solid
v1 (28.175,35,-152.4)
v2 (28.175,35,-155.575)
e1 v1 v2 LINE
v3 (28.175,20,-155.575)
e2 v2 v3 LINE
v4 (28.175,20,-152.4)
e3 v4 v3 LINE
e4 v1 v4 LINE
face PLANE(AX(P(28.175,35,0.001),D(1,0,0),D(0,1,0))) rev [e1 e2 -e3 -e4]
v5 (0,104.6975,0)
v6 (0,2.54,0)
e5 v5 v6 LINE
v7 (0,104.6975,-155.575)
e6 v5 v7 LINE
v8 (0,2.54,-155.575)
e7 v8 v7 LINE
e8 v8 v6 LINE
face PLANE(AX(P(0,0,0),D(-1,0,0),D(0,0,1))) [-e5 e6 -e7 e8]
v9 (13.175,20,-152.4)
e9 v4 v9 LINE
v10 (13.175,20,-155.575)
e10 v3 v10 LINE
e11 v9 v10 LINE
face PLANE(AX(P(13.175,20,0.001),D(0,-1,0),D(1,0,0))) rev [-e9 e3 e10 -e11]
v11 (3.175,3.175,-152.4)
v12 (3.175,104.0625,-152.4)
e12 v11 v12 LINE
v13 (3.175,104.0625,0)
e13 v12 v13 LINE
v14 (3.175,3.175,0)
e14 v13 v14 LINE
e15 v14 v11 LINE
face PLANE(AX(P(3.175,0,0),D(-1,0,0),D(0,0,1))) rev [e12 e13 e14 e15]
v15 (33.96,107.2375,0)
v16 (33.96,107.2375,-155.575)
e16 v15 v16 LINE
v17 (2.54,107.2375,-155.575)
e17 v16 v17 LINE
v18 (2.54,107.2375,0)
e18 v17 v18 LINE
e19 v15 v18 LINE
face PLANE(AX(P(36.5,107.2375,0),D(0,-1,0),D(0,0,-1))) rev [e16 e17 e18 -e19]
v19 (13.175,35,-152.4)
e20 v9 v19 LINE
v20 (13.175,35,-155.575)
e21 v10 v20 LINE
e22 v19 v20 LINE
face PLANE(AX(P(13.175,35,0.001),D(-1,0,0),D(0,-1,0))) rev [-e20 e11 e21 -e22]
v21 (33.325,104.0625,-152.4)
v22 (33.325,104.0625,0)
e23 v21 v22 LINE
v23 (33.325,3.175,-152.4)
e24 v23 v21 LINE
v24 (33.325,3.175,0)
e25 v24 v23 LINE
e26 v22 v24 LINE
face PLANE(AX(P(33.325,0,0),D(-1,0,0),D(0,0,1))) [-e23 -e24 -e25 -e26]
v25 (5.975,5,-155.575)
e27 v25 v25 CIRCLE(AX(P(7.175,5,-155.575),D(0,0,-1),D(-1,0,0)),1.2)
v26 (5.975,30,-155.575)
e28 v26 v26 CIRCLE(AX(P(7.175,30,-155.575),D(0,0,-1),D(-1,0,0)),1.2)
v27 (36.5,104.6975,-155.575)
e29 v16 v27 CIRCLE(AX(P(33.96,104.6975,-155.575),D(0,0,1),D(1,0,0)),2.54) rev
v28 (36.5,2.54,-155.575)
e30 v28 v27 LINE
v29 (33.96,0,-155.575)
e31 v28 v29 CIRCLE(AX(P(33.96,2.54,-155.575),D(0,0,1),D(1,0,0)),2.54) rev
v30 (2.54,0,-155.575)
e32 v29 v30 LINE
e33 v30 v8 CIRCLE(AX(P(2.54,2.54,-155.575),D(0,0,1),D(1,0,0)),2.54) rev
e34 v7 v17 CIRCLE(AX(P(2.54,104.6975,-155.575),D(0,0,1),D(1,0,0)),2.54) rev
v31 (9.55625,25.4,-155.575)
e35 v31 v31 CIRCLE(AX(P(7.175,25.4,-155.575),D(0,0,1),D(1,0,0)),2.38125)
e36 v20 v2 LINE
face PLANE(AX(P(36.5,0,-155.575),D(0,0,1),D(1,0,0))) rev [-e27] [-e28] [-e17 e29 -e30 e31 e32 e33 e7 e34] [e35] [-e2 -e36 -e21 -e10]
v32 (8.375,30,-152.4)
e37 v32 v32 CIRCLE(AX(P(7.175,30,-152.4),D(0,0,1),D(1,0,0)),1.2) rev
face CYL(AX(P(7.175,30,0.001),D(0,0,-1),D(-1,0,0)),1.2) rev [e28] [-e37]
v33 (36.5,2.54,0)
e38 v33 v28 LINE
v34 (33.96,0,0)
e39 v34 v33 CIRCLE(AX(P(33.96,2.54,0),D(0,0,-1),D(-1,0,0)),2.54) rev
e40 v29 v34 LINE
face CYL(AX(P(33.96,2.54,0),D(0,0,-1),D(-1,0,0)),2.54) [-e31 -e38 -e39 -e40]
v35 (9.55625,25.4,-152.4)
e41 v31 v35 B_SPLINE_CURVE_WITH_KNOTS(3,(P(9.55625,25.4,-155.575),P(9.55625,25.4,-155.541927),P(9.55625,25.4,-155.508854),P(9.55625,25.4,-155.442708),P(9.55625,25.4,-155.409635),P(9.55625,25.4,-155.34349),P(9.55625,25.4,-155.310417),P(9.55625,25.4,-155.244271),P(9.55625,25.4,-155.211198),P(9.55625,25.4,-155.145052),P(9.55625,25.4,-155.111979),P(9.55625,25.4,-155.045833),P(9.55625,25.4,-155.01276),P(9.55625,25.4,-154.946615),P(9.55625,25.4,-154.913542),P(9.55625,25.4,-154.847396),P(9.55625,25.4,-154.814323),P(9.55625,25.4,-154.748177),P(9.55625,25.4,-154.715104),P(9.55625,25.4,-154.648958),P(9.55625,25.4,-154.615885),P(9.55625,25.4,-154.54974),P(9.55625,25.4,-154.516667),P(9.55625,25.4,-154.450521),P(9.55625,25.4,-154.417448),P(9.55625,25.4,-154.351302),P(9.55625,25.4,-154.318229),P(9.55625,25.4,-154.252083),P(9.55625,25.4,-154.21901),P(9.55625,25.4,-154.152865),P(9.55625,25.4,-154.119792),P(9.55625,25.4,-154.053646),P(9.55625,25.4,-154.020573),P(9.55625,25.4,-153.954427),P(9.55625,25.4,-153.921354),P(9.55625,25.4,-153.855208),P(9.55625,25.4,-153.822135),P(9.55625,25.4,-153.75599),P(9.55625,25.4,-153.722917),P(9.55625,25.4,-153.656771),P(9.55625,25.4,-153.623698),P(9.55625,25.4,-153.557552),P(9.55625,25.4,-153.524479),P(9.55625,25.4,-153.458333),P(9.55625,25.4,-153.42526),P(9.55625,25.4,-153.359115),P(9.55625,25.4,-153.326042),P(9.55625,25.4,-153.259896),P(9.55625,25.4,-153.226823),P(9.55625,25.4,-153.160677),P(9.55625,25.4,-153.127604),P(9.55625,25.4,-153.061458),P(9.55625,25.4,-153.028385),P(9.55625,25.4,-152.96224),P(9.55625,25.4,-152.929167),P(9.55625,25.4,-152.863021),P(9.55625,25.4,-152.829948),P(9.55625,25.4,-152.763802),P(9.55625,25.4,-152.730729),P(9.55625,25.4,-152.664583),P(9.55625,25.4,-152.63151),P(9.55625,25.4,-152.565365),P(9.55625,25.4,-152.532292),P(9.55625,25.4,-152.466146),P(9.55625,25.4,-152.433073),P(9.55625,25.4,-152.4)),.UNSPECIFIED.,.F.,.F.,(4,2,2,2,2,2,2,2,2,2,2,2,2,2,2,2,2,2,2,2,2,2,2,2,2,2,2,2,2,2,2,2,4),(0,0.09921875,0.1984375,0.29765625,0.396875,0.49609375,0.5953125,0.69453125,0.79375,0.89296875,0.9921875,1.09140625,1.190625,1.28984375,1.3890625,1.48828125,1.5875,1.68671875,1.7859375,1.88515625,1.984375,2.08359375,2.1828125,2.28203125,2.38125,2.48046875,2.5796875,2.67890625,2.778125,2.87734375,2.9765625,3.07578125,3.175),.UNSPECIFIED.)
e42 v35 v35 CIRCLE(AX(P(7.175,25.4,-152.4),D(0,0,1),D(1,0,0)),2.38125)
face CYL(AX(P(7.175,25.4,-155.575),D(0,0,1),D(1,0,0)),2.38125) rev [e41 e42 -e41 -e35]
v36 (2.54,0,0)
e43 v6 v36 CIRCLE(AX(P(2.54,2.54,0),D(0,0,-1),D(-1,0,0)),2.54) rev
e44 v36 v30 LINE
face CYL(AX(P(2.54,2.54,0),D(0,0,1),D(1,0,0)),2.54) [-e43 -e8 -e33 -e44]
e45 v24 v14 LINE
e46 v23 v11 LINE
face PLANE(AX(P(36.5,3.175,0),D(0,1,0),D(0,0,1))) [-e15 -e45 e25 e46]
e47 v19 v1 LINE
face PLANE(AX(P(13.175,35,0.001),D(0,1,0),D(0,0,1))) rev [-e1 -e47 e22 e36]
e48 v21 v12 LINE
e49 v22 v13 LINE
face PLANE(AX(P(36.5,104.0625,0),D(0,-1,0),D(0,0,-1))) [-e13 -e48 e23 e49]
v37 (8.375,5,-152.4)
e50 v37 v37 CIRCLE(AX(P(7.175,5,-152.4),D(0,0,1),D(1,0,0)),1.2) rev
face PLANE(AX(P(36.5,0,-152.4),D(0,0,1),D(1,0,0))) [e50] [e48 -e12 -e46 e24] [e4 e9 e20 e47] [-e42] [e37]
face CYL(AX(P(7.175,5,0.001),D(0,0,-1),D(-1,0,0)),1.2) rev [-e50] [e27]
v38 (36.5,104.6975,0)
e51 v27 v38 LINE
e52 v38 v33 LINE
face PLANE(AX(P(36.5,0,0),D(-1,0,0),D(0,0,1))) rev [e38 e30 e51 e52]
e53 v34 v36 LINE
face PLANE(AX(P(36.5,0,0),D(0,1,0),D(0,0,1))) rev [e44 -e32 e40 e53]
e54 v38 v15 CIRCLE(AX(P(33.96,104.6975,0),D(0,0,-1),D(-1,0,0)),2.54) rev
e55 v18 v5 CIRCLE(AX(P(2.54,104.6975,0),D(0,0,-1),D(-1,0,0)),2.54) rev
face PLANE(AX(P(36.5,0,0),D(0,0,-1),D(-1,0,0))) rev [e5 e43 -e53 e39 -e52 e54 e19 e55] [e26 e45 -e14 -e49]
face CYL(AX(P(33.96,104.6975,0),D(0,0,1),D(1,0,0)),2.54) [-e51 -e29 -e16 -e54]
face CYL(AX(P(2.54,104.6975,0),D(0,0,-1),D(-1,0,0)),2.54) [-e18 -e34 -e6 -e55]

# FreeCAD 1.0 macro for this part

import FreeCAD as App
import Part
import Sketcher
from FreeCAD import Vector
Q = App.Units.Quantity


def edges_at(feature, points):
    """Names of the edges that pass closest to the given points."""
    edges = feature.Shape.Edges
    near = lambda p: min(range(len(edges)), key=lambda i: edges[i].distToShape(Part.Vertex(*p))[0])
    return sorted({f"Edge{near(p) + 1}" for p in points})


def faces_at(feature, points):
    """Names of the faces that lie closest to the given points."""
    faces = feature.Shape.Faces
    near = lambda p: min(range(len(faces)), key=lambda i: faces[i].distToShape(Part.Vertex(*p))[0])
    return sorted({f"Face{near(p) + 1}" for p in points})


def add_polygon(sketch, points):
    """Adds a closed chain of lines whose ends are joined by coincident constraints."""
    first, n = sketch.GeometryCount, len(points)
    for a, b in zip(points, points[1:] + points[:1]):
        sketch.addGeometry(Part.LineSegment(App.Vector(*a, 0), App.Vector(*b, 0)), False)
    for i in range(n):
        sketch.addConstraint(Sketcher.Constraint("Coincident", first + i, 2, first + (i + 1) % n, 1))

doc = App.newDocument("Part")
body = doc.addObject("PartDesign::Body", "Body")

# Sketch on YZ plane
sketch1 = body.newObject("Sketcher::SketchObject", "Sketch")
sketch1.AttachmentSupport = (doc.getObject("YZ_Plane"), [""])
sketch1.MapMode = "FlatFace"
add_polygon(sketch1, [(107, 0), (0, 0), (0, -156), (107, -156)])  # lines 0-3
sketch1.addConstraint([
    Sketcher.Constraint("Horizontal", 0),
    Sketcher.Constraint("Vertical", 1),
    Sketcher.Constraint("Horizontal", 2),
    Sketcher.Constraint("Vertical", 3),
    Sketcher.Constraint("Coincident", 0, 2, -1, 1),
    Sketcher.Constraint("DistanceY", 1, 2, 1, 1, Q("6.125 in")),
    Sketcher.Constraint("DistanceX", 0, 2, 0, 1, Q("107.2375 mm")),
])
pad1 = body.newObject("PartDesign::Pad", "Pad")
pad1.Profile = sketch1
pad1.Length = 36.5
doc.recompute()

thickness = body.newObject("PartDesign::Thickness", "Thickness")
thickness.Base = (pad1, faces_at(pad1, [(18.25, 53.619, 0)]))
thickness.Value = Q("0.125 in")
thickness.Reversed = True
thickness.Join = "Intersection"
doc.recompute()

fillet = body.newObject("PartDesign::Fillet", "Fillet")
fillet.Base = (thickness, edges_at(thickness, [
    (36.5, 107.238, -77.787),
    (0, 107.238, -77.787),
    (0, 0, -77.787),
    (36.5, 0, -77.787),
]))
fillet.Radius = Q("0.1 in")

# Sketch on XY plane
sketch2 = body.newObject("Sketcher::SketchObject", "Sketch001")
sketch2.AttachmentSupport = (doc.getObject("XY_Plane"), [""])
sketch2.MapMode = "FlatFace"
sketch2.AttachmentOffset = App.Placement(Vector(0, 0, -6.125 * 25.4), App.Rotation())
sketch2.addGeometry(Part.Circle(Vector(7.2, 30, 0), Vector(0, 0, 1), 1.2), False)
sketch2.addConstraint([
    Sketcher.Constraint("Diameter", 0, Q("2.4 mm")),
    Sketcher.Constraint("DistanceX", -1, 1, 0, 3, Q("7.175 mm")),
    Sketcher.Constraint("DistanceY", -1, 1, 0, 3, Q("30 mm")),
])
pocket1 = body.newObject("PartDesign::Pocket", "Pocket")
pocket1.Profile = sketch2
pocket1.Type = "UpToFirst"
pocket1.Reversed = True

# Sketch on XY plane
sketch3 = body.newObject("Sketcher::SketchObject", "Sketch002")
sketch3.AttachmentSupport = (doc.getObject("XY_Plane"), [""])
sketch3.MapMode = "FlatFace"
sketch3.AttachmentOffset = App.Placement(Vector(0, 0, -6.125 * 25.4), App.Rotation())
sketch3.addGeometry(Part.Circle(Vector(7.2, 5, 0), Vector(0, 0, 1), 1.2), False)
sketch3.addConstraint([
    Sketcher.Constraint("Diameter", 0, Q("2.4 mm")),
    Sketcher.Constraint("DistanceX", -1, 1, 0, 3, Q("7.175 mm")),
    Sketcher.Constraint("DistanceY", -1, 1, 0, 3, Q("5 mm")),
])
pocket2 = body.newObject("PartDesign::Pocket", "Pocket001")
pocket2.Profile = sketch3
pocket2.Type = "UpToFirst"
pocket2.Reversed = True

# Sketch on XY plane
sketch4 = body.newObject("Sketcher::SketchObject", "Sketch003")
sketch4.AttachmentSupport = (doc.getObject("XY_Plane"), [""])
sketch4.MapMode = "FlatFace"
sketch4.AttachmentOffset = App.Placement(Vector(0, 0, -6.125 * 25.4), App.Rotation())
add_polygon(sketch4, [(28, 35), (28, 20), (13, 20), (13, 35)])  # lines 0-3
sketch4.addConstraint([
    Sketcher.Constraint("Vertical", 0),
    Sketcher.Constraint("Horizontal", 1),
    Sketcher.Constraint("Vertical", 2),
    Sketcher.Constraint("Horizontal", 3),
    Sketcher.Constraint("Equal", 3, 0),
    Sketcher.Constraint("DistanceX", 1, 2, 1, 1, Q("15 mm")),
    Sketcher.Constraint("DistanceX", -1, 1, 0, 2, Q("28.175 mm")),
    Sketcher.Constraint("DistanceY", -1, 1, 0, 2, Q("20 mm")),
])
pocket3 = body.newObject("PartDesign::Pocket", "Pocket002")
pocket3.Profile = sketch4
pocket3.Type = "UpToFirst"
pocket3.Reversed = True

# Sketch on XY plane
sketch5 = body.newObject("Sketcher::SketchObject", "Sketch004")
sketch5.AttachmentSupport = (doc.getObject("XY_Plane"), [""])
sketch5.MapMode = "FlatFace"
sketch5.AttachmentOffset = App.Placement(Vector(0, 0, -6 * 25.4), App.Rotation())
sketch5.addGeometry(Part.Circle(Vector(7.2, 25.4, 0), Vector(0, 0, 1), 2.4), False)
sketch5.addConstraint([
    Sketcher.Constraint("Diameter", 0, Q("0.1875 in")),
    Sketcher.Constraint("DistanceY", -1, 1, 0, 3, Q("1 in")),
    Sketcher.Constraint("DistanceX", -1, 1, 0, 3, Q("7.175 mm")),
])
pocket4 = body.newObject("PartDesign::Pocket", "Pocket003")
pocket4.Profile = sketch5
pocket4.Type = "ThroughAll"

doc.recompute()
